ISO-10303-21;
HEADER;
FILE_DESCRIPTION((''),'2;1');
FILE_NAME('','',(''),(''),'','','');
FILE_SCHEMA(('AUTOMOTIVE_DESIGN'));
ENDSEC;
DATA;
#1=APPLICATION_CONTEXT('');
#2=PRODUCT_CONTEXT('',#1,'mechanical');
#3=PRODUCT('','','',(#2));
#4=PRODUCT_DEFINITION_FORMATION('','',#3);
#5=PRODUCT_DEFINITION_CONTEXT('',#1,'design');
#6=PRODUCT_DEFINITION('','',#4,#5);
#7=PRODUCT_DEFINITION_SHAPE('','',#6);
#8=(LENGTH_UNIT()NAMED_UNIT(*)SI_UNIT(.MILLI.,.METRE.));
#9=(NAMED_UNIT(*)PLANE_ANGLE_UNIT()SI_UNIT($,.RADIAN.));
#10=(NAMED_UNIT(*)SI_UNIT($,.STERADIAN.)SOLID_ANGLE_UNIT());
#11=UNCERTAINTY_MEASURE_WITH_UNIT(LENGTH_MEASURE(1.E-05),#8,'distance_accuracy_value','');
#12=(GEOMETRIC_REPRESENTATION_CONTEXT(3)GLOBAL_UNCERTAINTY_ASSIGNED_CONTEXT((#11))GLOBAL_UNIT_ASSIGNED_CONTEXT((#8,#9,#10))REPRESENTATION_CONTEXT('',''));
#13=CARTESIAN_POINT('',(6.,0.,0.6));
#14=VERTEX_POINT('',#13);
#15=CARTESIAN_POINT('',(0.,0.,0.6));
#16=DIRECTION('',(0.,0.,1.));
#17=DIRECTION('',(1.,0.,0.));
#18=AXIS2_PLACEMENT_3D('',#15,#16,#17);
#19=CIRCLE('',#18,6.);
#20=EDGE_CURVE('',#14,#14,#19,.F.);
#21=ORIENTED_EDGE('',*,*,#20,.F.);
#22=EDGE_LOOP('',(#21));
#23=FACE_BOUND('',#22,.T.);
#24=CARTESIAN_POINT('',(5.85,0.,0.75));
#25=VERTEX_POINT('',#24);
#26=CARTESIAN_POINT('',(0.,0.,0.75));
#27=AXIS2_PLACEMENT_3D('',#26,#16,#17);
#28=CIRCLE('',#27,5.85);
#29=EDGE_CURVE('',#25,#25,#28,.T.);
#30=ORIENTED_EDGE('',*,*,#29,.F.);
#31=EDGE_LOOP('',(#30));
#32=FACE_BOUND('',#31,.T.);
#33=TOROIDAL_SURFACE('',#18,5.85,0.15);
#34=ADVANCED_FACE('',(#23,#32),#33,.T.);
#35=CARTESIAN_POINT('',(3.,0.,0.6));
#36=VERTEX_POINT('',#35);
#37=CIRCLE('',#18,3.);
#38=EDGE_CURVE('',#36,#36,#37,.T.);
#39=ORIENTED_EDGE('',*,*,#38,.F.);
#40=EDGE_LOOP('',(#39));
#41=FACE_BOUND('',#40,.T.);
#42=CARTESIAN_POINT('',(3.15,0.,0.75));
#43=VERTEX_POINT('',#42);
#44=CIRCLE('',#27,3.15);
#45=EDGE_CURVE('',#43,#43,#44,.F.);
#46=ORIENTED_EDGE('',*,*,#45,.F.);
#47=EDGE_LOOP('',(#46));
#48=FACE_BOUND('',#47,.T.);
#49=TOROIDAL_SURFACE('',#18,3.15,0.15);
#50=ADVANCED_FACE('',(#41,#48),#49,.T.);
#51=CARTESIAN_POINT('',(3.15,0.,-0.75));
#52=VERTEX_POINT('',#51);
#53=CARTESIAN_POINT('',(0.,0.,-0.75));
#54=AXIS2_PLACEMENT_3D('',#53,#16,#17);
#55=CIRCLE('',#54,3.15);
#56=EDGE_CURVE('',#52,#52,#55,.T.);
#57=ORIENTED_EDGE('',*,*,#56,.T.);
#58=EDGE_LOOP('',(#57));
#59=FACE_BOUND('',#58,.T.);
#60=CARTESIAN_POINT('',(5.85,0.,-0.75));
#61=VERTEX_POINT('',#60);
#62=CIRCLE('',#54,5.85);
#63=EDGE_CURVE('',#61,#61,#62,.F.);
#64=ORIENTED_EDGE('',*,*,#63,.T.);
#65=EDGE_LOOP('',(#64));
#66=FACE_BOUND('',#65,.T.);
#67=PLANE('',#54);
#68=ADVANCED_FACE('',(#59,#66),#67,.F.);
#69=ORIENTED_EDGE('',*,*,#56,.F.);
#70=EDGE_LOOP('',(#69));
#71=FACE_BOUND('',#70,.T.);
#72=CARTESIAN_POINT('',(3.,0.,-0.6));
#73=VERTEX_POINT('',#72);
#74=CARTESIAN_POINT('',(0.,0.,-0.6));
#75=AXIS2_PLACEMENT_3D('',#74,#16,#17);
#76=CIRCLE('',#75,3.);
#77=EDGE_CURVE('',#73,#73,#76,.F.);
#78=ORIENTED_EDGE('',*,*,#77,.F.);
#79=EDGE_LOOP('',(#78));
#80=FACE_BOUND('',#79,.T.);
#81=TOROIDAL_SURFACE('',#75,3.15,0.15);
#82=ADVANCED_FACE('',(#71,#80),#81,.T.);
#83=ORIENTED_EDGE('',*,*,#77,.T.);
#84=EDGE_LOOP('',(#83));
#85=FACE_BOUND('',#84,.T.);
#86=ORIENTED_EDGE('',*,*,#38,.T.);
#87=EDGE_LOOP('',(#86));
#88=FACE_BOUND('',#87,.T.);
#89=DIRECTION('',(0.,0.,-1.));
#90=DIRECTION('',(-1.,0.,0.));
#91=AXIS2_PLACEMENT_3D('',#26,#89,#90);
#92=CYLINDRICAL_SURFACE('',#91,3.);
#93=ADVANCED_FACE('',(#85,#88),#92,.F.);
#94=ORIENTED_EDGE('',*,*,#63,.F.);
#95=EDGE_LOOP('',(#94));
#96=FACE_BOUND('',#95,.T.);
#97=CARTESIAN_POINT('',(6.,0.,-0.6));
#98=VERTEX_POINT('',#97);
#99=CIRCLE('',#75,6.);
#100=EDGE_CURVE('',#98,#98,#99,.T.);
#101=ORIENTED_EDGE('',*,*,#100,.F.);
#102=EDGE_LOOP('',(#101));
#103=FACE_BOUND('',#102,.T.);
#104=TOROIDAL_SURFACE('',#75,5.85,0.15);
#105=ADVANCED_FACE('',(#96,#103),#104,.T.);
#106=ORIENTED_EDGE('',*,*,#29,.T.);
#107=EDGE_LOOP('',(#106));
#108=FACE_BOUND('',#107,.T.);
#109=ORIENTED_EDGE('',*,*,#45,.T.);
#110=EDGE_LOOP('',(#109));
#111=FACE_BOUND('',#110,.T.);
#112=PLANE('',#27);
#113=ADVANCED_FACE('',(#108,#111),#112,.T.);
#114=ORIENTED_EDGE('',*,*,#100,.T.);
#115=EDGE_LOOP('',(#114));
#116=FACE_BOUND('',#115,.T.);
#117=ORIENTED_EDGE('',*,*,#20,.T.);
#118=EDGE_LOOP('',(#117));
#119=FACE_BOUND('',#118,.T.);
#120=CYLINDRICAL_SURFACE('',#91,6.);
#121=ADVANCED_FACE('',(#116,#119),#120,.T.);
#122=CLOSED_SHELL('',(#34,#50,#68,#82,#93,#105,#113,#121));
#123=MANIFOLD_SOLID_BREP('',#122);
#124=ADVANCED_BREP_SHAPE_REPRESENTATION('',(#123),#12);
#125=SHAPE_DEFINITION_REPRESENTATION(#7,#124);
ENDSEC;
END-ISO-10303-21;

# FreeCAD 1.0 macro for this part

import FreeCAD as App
import Part
import Sketcher
from FreeCAD import Vector
Q = App.Units.Quantity


def edges_at(feature, points):
    """Names of the edges that pass closest to the given points."""
    edges = feature.Shape.Edges
    near = lambda p: min(range(len(edges)), key=lambda i: edges[i].distToShape(Part.Vertex(*p))[0])
    return sorted({f"Edge{near(p) + 1}" for p in points})

doc = App.newDocument("Part")
body = doc.addObject("PartDesign::Body", "Body")

sketch1 = body.newObject("Sketcher::SketchObject", "Sketch")
sketch1.AttachmentSupport = (doc.getObject("XY_Plane"), [""])
sketch1.MapMode = "FlatFace"
sketch1.addGeometry([
    Part.Circle(Vector(0, 0, 0), Vector(0, 0, 1), 6),
    Part.Circle(Vector(0, 0, 0), Vector(0, 0, 1), 3),
], False)
sketch1.addConstraint([
    Sketcher.Constraint("Coincident", 0, 3, -1, 1),
    Sketcher.Constraint("Coincident", 1, 3, -1, 1),
    Sketcher.Constraint("Diameter", 0, Q("12 mm")),
    Sketcher.Constraint("Diameter", 1, Q("6 mm")),
])
pad1 = body.newObject("PartDesign::Pad", "Pad")
pad1.Profile = sketch1
pad1.Type = "TwoLengths"
pad1.Length = 0.75
pad1.Length2 = 0.75
doc.recompute()

fillet = body.newObject("PartDesign::Fillet", "Fillet")
fillet.Base = (pad1, edges_at(pad1, [
    (-6, 0, 0.75),
    (-3, 0, 0.75),
    (-6, 0, -0.75),
    (-3, 0, -0.75),
]))
fillet.Radius = 0.15

doc.recompute()
